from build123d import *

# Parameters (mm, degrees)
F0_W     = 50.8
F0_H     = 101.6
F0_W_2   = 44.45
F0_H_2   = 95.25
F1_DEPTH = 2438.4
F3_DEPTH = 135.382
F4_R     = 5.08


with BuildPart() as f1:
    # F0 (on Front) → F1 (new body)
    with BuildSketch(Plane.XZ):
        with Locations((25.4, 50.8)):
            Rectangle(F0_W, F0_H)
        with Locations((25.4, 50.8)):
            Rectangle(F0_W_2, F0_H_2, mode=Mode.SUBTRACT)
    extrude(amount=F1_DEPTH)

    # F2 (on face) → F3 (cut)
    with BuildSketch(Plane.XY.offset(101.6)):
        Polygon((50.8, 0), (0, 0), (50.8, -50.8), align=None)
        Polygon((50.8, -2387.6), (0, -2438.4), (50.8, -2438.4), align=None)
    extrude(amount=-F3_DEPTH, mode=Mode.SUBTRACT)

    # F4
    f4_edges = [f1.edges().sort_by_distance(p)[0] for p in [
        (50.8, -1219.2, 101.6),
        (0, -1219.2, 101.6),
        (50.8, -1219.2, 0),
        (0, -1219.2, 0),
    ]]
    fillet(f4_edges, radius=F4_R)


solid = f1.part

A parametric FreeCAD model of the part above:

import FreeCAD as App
import Part
import Sketcher
Q = App.Units.Quantity


def edges_at(feature, points):
    """Names of the edges that pass closest to the given points."""
    edges = feature.Shape.Edges
    near = lambda p: min(range(len(edges)), key=lambda i: edges[i].distToShape(Part.Vertex(*p))[0])
    return sorted({f"Edge{near(p) + 1}" for p in points})


def add_polygon(sketch, points):
    """Adds a closed chain of lines whose ends are joined by coincident constraints."""
    first, n = sketch.GeometryCount, len(points)
    for a, b in zip(points, points[1:] + points[:1]):
        sketch.addGeometry(Part.LineSegment(App.Vector(*a, 0), App.Vector(*b, 0)), False)
    for i in range(n):
        sketch.addConstraint(Sketcher.Constraint("Coincident", first + i, 2, first + (i + 1) % n, 1))

doc = App.newDocument("Part")
body = doc.addObject("PartDesign::Body", "Body")

# Sketch on XZ plane
sketch1 = body.newObject("Sketcher::SketchObject", "Sketch")
sketch1.AttachmentSupport = (doc.getObject("XZ_Plane"), [""])
sketch1.MapMode = "FlatFace"
add_polygon(sketch1, [(0, 101.6), (0, 0), (50.8, 0), (50.8, 101.6)])  # lines 0-3
add_polygon(sketch1, [(47.625, 3.175), (3.175, 3.175), (3.175, 98.425), (47.625, 98.425)])  # lines 4-7
sketch1.addConstraint([
    Sketcher.Constraint("Vertical", 0),
    Sketcher.Constraint("Horizontal", 1),
    Sketcher.Constraint("Vertical", 2),
    Sketcher.Constraint("Horizontal", 3),
    Sketcher.Constraint("Horizontal", 4),
    Sketcher.Constraint("Vertical", 5),
    Sketcher.Constraint("Horizontal", 6),
    Sketcher.Constraint("Vertical", 7),
    Sketcher.Constraint("Coincident", 0, 2, -1, 1),
    Sketcher.Constraint("DistanceX", 1, 1, 1, 2, Q("2 in")),
    Sketcher.Constraint("DistanceY", 0, 2, 0, 1, Q("4 in")),
    Sketcher.Constraint("DistanceX", 4, 2, 4, 1, Q("1.75 in")),
    Sketcher.Constraint("DistanceY", 5, 1, 5, 2, Q("3.75 in")),
    Sketcher.Constraint("DistanceX", -1, 1, 4, 2, Q("0.125 in")),
    Sketcher.Constraint("DistanceY", -1, 1, 4, 2, Q("0.125 in")),
])
pad1 = body.newObject("PartDesign::Pad", "Pad")
pad1.Profile = sketch1
pad1.Length = Q("96 in")

# Sketch on XY plane
sketch2 = body.newObject("Sketcher::SketchObject", "Sketch001")
sketch2.AttachmentSupport = (doc.getObject("XY_Plane"), [""])
sketch2.MapMode = "FlatFace"
sketch2.AttachmentOffset = App.Placement(App.Vector(0, 0, 4 * 25.4), App.Rotation())
add_polygon(sketch2, [(50.8, 0), (0, 0), (50.8, -50.8)])  # lines 0-2
add_polygon(sketch2, [(50.8, -2387.6), (0, -2438.4), (50.8, -2438.4)])  # lines 3-5
sketch2.addConstraint([
    Sketcher.Constraint("Horizontal", 0),
    Sketcher.Constraint("Vertical", 2),
    Sketcher.Constraint("Horizontal", 4),
    Sketcher.Constraint("Vertical", 5),
    Sketcher.Constraint("Coincident", 0, 2, -1, 1),
    Sketcher.Constraint("PointOnObject", 3, 2, -2),
    Sketcher.Constraint("Perpendicular", 1, 3),
    Sketcher.Constraint("Vertical", 2, 2, 4, 2),
    Sketcher.Constraint("Equal", 4, 2),
    Sketcher.Constraint("DistanceX", 0, 2, 0, 1, Q("2 in")),
    Sketcher.Constraint("DistanceY", 3, 2, -1, 1, Q("96 in")),
])
pocket1 = body.newObject("PartDesign::Pocket", "Pocket")
pocket1.Profile = sketch2
pocket1.Length = Q("5.33 in")
doc.recompute()

fillet = body.newObject("PartDesign::Fillet", "Fillet")
fillet.Base = (pocket1, edges_at(pocket1, [
    (50.8, -1219.2, 101.6),
    (0, -1219.2, 101.6),
    (50.8, -1219.2, 0),
    (0, -1219.2, 0),
]))
fillet.Radius = Q("0.2 in")

doc.recompute()
